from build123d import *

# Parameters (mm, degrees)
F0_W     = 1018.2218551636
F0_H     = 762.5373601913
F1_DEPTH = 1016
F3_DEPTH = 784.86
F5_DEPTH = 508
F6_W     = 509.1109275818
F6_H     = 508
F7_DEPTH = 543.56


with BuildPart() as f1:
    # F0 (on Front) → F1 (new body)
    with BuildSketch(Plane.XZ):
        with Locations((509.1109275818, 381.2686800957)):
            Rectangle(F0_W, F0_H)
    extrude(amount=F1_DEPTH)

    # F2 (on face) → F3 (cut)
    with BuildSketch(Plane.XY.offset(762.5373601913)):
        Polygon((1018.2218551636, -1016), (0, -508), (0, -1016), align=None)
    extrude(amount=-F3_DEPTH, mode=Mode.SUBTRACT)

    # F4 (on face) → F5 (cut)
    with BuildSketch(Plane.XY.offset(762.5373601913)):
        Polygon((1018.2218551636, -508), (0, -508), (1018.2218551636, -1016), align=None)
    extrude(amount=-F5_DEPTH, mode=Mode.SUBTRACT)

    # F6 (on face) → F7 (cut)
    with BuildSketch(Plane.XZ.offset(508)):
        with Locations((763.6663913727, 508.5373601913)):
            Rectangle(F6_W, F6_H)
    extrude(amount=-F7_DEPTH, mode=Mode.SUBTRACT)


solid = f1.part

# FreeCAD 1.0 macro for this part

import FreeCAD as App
import Part
import Sketcher

V = App.Vector
Q = App.Units.Quantity

doc = App.newDocument("Part")
params = doc.addObject("Spreadsheet::Sheet", "Params")
for row, (alias, value) in enumerate([
    ("pad1_length", "40 in"),
    ("sketch2_height", "20 in"),
    ("pocket1_length", "30.9 in"),
    ("sketch3_height", "20 in"),
    ("pocket2_length", "20 in"),
    ("sketch4_height", "20 in"),
    ("pocket3_length", "21.4 in"),
], start=1):
    params.set(f"A{row}", alias)
    params.set(f"B{row}", "=" + value)
    params.setAlias(f"B{row}", alias)

body = doc.addObject("PartDesign::Body", "Body")

# Sketch on XZ plane
sketch1 = body.newObject("Sketcher::SketchObject", "Sketch")
sketch1.AttachmentSupport = (doc.getObject("XZ_Plane"), [""])
sketch1.MapMode = "FlatFace"
sketch1.addGeometry([
    Part.LineSegment(V(0, 762.53736, 0), V(0, 0, 0)),
    Part.LineSegment(V(0, 0, 0), V(1018.221855, 0, 0)),
    Part.LineSegment(V(1018.221855, 0, 0), V(1018.221855, 762.53736, 0)),
    Part.LineSegment(V(1018.221855, 762.53736, 0), V(0, 762.53736, 0)),
], False)
sketch1.addConstraint([
    Sketcher.Constraint("Coincident", 0, 2, 1, 1),
    Sketcher.Constraint("Coincident", 1, 2, 2, 1),
    Sketcher.Constraint("Coincident", 2, 2, 3, 1),
    Sketcher.Constraint("Coincident", 3, 2, 0, 1),
    Sketcher.Constraint("Vertical", 0),
    Sketcher.Constraint("Horizontal", 1),
    Sketcher.Constraint("Vertical", 2),
    Sketcher.Constraint("Horizontal", 3),
    Sketcher.Constraint("Coincident", 0, 2, -1, 1),
    Sketcher.Constraint("DistanceY", 0, 2, 0, 1, Q("762.53736 mm")),
    Sketcher.Constraint("DistanceX", 1, 1, 1, 2, Q("1018.221855 mm")),
])
pad1 = body.newObject("PartDesign::Pad", "Pad")
pad1.Profile = sketch1
pad1.setExpression("Length", "Params.pad1_length")

# Sketch on XY plane
sketch2 = body.newObject("Sketcher::SketchObject", "Sketch001")
sketch2.AttachmentSupport = (doc.getObject("XY_Plane"), [""])
sketch2.MapMode = "FlatFace"
sketch2.AttachmentOffset = App.Placement(V(0, 0, 762.53736), App.Rotation())
sketch2.addGeometry([
    Part.LineSegment(V(1018.221855, -1016, 0), V(0, -508, 0)),
    Part.LineSegment(V(0, -508, 0), V(0, -1016, 0)),
    Part.LineSegment(V(0, -1016, 0), V(1018.221855, -1016, 0)),
], False)
sketch2.addConstraint([
    Sketcher.Constraint("Coincident", 0, 2, 1, 1),
    Sketcher.Constraint("Coincident", 1, 2, 2, 1),
    Sketcher.Constraint("Coincident", 2, 2, 0, 1),
    Sketcher.Constraint("Vertical", 1),
    Sketcher.Constraint("Horizontal", 2),
    Sketcher.Constraint("PointOnObject", 0, 2, -2),
    Sketcher.Constraint("DistanceY", 1, 2, 1, 1, Q("20 in")),
    Sketcher.Constraint("DistanceY", 0, 2, -1, 1, Q("20 in")),
    Sketcher.Constraint("DistanceX", 2, 1, 2, 2, Q("1018.221855 mm")),
])
sketch2.setExpression("Constraints[6]", "Params.sketch2_height")
pocket1 = body.newObject("PartDesign::Pocket", "Pocket")
pocket1.Profile = sketch2
pocket1.setExpression("Length", "Params.pocket1_length")

# Sketch on XY plane
sketch3 = body.newObject("Sketcher::SketchObject", "Sketch002")
sketch3.AttachmentSupport = (doc.getObject("XY_Plane"), [""])
sketch3.MapMode = "FlatFace"
sketch3.AttachmentOffset = App.Placement(V(0, 0, 762.53736), App.Rotation())
sketch3.addGeometry([
    Part.LineSegment(V(1018.221855, -508, 0), V(0, -508, 0)),
    Part.LineSegment(V(0, -508, 0), V(1018.221855, -1016, 0)),
    Part.LineSegment(V(1018.221855, -1016, 0), V(1018.221855, -508, 0)),
], False)
sketch3.addConstraint([
    Sketcher.Constraint("Coincident", 0, 2, 1, 1),
    Sketcher.Constraint("Coincident", 1, 2, 2, 1),
    Sketcher.Constraint("Coincident", 2, 2, 0, 1),
    Sketcher.Constraint("Horizontal", 0),
    Sketcher.Constraint("Vertical", 2),
    Sketcher.Constraint("PointOnObject", 0, 2, -2),
    Sketcher.Constraint("DistanceY", 2, 1, 2, 2, Q("20 in")),
    Sketcher.Constraint("DistanceY", 0, 2, -1, 1, Q("20 in")),
    Sketcher.Constraint("DistanceX", 0, 2, 0, 1, Q("1018.221855 mm")),
])
sketch3.setExpression("Constraints[6]", "Params.sketch3_height")
pocket2 = body.newObject("PartDesign::Pocket", "Pocket001")
pocket2.Profile = sketch3
pocket2.setExpression("Length", "Params.pocket2_length")

# Sketch on XZ plane
sketch4 = body.newObject("Sketcher::SketchObject", "Sketch003")
sketch4.AttachmentSupport = (doc.getObject("XZ_Plane"), [""])
sketch4.MapMode = "FlatFace"
sketch4.AttachmentOffset = App.Placement(V(0, 0, 20 * 25.4), App.Rotation())
sketch4.addGeometry([
    Part.LineSegment(V(509.110928, 762.53736, 0), V(509.110928, 254.53736, 0)),
    Part.LineSegment(V(509.110928, 254.53736, 0), V(1018.221855, 254.53736, 0)),
    Part.LineSegment(V(1018.221855, 254.53736, 0), V(1018.221855, 762.53736, 0)),
    Part.LineSegment(V(1018.221855, 762.53736, 0), V(509.110928, 762.53736, 0)),
], False)
sketch4.addConstraint([
    Sketcher.Constraint("Coincident", 0, 2, 1, 1),
    Sketcher.Constraint("Coincident", 1, 2, 2, 1),
    Sketcher.Constraint("Coincident", 2, 2, 3, 1),
    Sketcher.Constraint("Coincident", 3, 2, 0, 1),
    Sketcher.Constraint("Vertical", 0),
    Sketcher.Constraint("Horizontal", 1),
    Sketcher.Constraint("Vertical", 2),
    Sketcher.Constraint("Horizontal", 3),
    Sketcher.Constraint("DistanceY", 0, 2, 0, 1, Q("20 in")),
    Sketcher.Constraint("DistanceX", 1, 1, 1, 2, Q("509.110928 mm")),
    Sketcher.Constraint("DistanceY", -1, 1, 0, 2, Q("254.53736 mm")),
    Sketcher.Constraint("DistanceX", -1, 1, 0, 2, Q("509.110928 mm")),
])
sketch4.setExpression("Constraints[8]", "Params.sketch4_height")
pocket3 = body.newObject("PartDesign::Pocket", "Pocket002")
pocket3.Profile = sketch4
pocket3.setExpression("Length", "Params.pocket3_length")

doc.recompute()
